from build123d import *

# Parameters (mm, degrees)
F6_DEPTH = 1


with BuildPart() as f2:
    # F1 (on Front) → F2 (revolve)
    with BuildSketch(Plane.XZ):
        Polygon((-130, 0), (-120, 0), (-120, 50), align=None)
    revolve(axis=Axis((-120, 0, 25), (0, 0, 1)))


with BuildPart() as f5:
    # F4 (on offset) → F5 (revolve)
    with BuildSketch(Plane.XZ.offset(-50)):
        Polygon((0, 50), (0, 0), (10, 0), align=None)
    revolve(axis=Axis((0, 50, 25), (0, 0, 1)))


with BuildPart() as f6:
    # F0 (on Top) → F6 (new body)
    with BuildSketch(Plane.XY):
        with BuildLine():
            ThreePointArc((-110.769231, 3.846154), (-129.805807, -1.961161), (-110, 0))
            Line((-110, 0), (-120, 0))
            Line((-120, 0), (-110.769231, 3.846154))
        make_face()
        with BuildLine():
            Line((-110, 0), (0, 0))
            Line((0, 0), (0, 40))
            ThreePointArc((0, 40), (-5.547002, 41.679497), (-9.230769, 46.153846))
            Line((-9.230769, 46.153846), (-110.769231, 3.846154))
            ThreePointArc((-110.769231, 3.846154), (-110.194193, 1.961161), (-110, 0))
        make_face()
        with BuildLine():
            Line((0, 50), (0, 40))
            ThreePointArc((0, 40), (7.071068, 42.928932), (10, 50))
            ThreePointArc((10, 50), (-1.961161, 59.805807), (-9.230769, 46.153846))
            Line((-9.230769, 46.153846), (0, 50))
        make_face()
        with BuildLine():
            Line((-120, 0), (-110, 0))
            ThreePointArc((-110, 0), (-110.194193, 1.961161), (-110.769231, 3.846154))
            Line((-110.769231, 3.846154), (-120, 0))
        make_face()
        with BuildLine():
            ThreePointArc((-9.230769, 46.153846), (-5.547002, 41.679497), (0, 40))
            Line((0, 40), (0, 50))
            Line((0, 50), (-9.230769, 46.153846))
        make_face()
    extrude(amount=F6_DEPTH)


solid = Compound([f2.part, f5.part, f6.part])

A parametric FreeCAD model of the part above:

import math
import FreeCAD as App
import Part
import Sketcher

doc = App.newDocument("Part")
body = doc.addObject("PartDesign::Body", "Body")

# Sketch on XZ plane
sketch1 = body.newObject("Sketcher::SketchObject", "Sketch")
sketch1.AttachmentSupport = (doc.getObject("XZ_Plane"), [""])
sketch1.MapMode = "FlatFace"
sketch1.addGeometry(Part.LineSegment(App.Vector(-130, 0, 0), App.Vector(-120, 0, 0)), False)
sketch1.addGeometry(Part.LineSegment(App.Vector(-120, 0, 0), App.Vector(-120, 50, 0)), False)
sketch1.addGeometry(Part.LineSegment(App.Vector(-120, 50, 0), App.Vector(-130, 0, 0)), False)
sketch1.addGeometry(Part.LineSegment(App.Vector(-120, 0, 0), App.Vector(-120, 50, 0)), True)  # axis
sketch1.addConstraint(Sketcher.Constraint("Coincident", 0, 2, 1, 1))
sketch1.addConstraint(Sketcher.Constraint("Coincident", 1, 2, 2, 1))
sketch1.addConstraint(Sketcher.Constraint("Coincident", 2, 2, 0, 1))
sketch1.addConstraint(Sketcher.Constraint("Horizontal", 0))
sketch1.addConstraint(Sketcher.Constraint("Vertical", 1))
sketch1.addConstraint(Sketcher.Constraint("Vertical", 3))
sketch1.addConstraint(Sketcher.Constraint("Coincident", 3, 1, 0, 2))
sketch1.addConstraint(Sketcher.Constraint("PointOnObject", 0, 2, -1))
sketch1.addConstraint(Sketcher.Constraint("Equal", 1, 3))
sketch1.addConstraint(Sketcher.Constraint("DistanceX", 0, 1, 0, 2, 10.0))
sketch1.addConstraint(Sketcher.Constraint("DistanceY", 1, 1, 1, 2, 50.0))
sketch1.addConstraint(Sketcher.Constraint("DistanceX", 0, 2, -1, 1, 120.0))
revolution = body.newObject("PartDesign::Revolution", "Revolution")
revolution.Profile = sketch1
revolution.ReferenceAxis = (sketch1, ["Axis0"])
revolution.Angle = 360
body2 = doc.addObject("PartDesign::Body", "Body001")

# Sketch on XZ plane
sketch2 = body2.newObject("Sketcher::SketchObject", "Sketch001")
sketch2.AttachmentSupport = (doc.getObject("XZ_Plane001"), [""])
sketch2.MapMode = "FlatFace"
sketch2.AttachmentOffset = App.Placement(App.Vector(0, 0, -50), App.Rotation())
sketch2.addGeometry(Part.LineSegment(App.Vector(0, 50, 0), App.Vector(0, 0, 0)), False)
sketch2.addGeometry(Part.LineSegment(App.Vector(0, 0, 0), App.Vector(10, 0, 0)), False)
sketch2.addGeometry(Part.LineSegment(App.Vector(10, 0, 0), App.Vector(0, 50, 0)), False)
sketch2.addConstraint(Sketcher.Constraint("Coincident", 0, 2, 1, 1))
sketch2.addConstraint(Sketcher.Constraint("Coincident", 1, 2, 2, 1))
sketch2.addConstraint(Sketcher.Constraint("Coincident", 2, 2, 0, 1))
sketch2.addConstraint(Sketcher.Constraint("Vertical", 0))
sketch2.addConstraint(Sketcher.Constraint("Horizontal", 1))
sketch2.addConstraint(Sketcher.Constraint("Coincident", 0, 2, -1, 1))
sketch2.addConstraint(Sketcher.Constraint("DistanceX", 1, 1, 1, 2, 10.0))
sketch2.addConstraint(Sketcher.Constraint("DistanceY", 0, 2, 0, 1, 50.0))
revolution2 = body2.newObject("PartDesign::Revolution", "Revolution001")
revolution2.Profile = sketch2
revolution2.ReferenceAxis = (sketch2, ["V_Axis"])
revolution2.Angle = 360
body3 = doc.addObject("PartDesign::Body", "Body002")

# Sketch on XY plane
sketch3 = body3.newObject("Sketcher::SketchObject", "Sketch002")
sketch3.AttachmentSupport = (doc.getObject("XY_Plane002"), [""])
sketch3.MapMode = "FlatFace"
sketch3.addGeometry(Part.ArcOfCircle(Part.Circle(App.Vector(-120, 0, 0), App.Vector(0, 0, 1), 10), math.radians(23), math.radians(360)), False)
sketch3.addGeometry(Part.LineSegment(App.Vector(-110, 0, 0), App.Vector(0, 0, 0)), False)
sketch3.addGeometry(Part.LineSegment(App.Vector(0, 0, 0), App.Vector(0, 40, 0)), False)
sketch3.addGeometry(Part.ArcOfCircle(Part.Circle(App.Vector(0, 50, 0), App.Vector(0, 0, 1), 10), math.radians(-90), math.radians(0)), False)
sketch3.addGeometry(Part.ArcOfCircle(Part.Circle(App.Vector(0, 50, 0), App.Vector(0, 0, 1), 10), math.radians(0), math.radians(203)), False)
sketch3.addGeometry(Part.LineSegment(App.Vector(-9.2, 46.2, 0), App.Vector(-110.8, 3.8, 0)), False)
sketch3.addConstraint(Sketcher.Constraint("Coincident", 0, 2, 1, 1))
sketch3.addConstraint(Sketcher.Constraint("Coincident", 1, 2, 2, 1))
sketch3.addConstraint(Sketcher.Constraint("Coincident", 2, 2, 3, 1))
sketch3.addConstraint(Sketcher.Constraint("Tangent", 3, 2, 4, 1))
sketch3.addConstraint(Sketcher.Constraint("Coincident", 4, 2, 5, 1))
sketch3.addConstraint(Sketcher.Constraint("Coincident", 5, 2, 0, 1))
sketch3.addConstraint(Sketcher.Constraint("Horizontal", 1))
sketch3.addConstraint(Sketcher.Constraint("Vertical", 2))
sketch3.addConstraint(Sketcher.Constraint("Coincident", 1, 2, -1, 1))
sketch3.addConstraint(Sketcher.Constraint("Equal", 0, 3))
sketch3.addConstraint(Sketcher.Constraint("Equal", 3, 4))
sketch3.addConstraint(Sketcher.Constraint("PointOnObject", 0, 3, -1))
sketch3.addConstraint(Sketcher.Constraint("PointOnObject", 3, 3, -2))
sketch3.addConstraint(Sketcher.Constraint("Horizontal", 4, 3, 3, 2))
sketch3.addConstraint(Sketcher.Constraint("Radius", 0, 10.0))
sketch3.addConstraint(Sketcher.Constraint("DistanceX", 1, 1, 1, 2, 110.0))
sketch3.addConstraint(Sketcher.Constraint("DistanceY", 2, 1, 2, 2, 40.0))
sketch3.addConstraint(Sketcher.Constraint("DistanceX", 4, 2, -1, 1, 9.230769))
sketch3.addConstraint(Sketcher.Constraint("DistanceX", 5, 2, -1, 1, 110.769231))
pad1 = body3.newObject("PartDesign::Pad", "Pad")
pad1.Profile = sketch3
pad1.Length = 1

doc.recompute()
